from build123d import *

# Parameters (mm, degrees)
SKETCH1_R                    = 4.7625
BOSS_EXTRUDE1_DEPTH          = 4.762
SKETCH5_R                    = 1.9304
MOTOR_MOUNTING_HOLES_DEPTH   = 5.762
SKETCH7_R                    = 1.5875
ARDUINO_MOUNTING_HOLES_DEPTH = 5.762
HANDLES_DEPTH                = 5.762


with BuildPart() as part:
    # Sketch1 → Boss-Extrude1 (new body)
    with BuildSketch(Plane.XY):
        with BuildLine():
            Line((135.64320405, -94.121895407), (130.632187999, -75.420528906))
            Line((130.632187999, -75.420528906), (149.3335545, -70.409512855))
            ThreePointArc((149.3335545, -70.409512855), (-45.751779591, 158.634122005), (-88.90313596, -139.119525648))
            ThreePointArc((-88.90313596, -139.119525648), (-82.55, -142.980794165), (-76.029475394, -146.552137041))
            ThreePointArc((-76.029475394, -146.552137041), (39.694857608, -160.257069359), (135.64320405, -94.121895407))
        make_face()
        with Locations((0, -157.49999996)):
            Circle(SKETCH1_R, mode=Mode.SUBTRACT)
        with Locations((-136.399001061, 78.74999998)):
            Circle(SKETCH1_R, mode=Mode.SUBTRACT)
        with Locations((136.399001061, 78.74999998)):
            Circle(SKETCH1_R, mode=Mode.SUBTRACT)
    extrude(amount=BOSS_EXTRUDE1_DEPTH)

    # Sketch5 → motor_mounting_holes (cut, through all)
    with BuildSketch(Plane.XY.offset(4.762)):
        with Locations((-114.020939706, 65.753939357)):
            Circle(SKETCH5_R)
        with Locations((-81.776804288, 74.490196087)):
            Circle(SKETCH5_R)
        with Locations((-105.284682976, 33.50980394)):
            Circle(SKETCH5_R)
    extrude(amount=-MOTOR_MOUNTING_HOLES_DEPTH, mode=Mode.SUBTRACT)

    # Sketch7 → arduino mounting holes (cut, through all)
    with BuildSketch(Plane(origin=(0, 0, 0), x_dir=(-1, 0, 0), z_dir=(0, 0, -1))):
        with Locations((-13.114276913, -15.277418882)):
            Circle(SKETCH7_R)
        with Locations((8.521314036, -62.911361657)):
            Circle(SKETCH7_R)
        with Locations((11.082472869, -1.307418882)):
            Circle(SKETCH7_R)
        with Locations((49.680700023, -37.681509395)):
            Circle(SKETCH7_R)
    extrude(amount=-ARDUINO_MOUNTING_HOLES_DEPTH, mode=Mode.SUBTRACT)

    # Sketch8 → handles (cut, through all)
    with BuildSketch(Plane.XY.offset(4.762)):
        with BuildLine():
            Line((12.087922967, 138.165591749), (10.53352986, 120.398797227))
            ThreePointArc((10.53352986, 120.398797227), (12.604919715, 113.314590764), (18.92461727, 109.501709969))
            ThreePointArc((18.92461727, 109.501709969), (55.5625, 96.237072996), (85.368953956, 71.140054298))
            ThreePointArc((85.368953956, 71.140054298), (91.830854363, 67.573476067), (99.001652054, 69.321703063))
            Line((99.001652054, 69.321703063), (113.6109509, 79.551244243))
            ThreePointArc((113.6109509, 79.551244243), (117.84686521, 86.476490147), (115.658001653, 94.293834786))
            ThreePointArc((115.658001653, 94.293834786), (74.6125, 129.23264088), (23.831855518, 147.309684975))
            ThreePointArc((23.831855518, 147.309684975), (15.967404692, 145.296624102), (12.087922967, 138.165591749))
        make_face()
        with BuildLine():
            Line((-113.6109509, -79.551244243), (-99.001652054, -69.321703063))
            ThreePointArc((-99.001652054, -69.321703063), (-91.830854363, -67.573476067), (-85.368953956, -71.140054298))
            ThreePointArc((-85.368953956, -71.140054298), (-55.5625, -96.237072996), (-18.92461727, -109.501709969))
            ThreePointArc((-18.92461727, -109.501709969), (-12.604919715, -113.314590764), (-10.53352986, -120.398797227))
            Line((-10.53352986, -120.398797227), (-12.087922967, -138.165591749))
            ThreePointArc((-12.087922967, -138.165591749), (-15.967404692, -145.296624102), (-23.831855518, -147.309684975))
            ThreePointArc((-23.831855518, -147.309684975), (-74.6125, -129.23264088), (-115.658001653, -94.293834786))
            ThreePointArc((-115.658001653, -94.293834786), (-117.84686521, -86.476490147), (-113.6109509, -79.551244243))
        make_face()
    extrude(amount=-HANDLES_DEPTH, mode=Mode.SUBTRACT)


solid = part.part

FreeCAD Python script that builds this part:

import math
import FreeCAD as App
import Part
import Sketcher
from FreeCAD import Vector
Q = App.Units.Quantity

doc = App.newDocument("Part")
params = doc.addObject("Spreadsheet::Sheet", "Params")
for row, (alias, value) in enumerate([
    ("sketch1_radius", "6.5 in"),
    ("sketch1_diameter", "0.375 in"),
    ("pad1_length", "4.762 mm"),
    ("sketch2_diameter", "0.152 in"),
    ("sketch3_diameter", "0.125 in"),
    ("sketch4_radius", "0.4 in"),
    ("sketch4_radius2", "4.375 in"),
    ("sketch4_radius3", "5.875 in"),
], start=1):
    params.set(f"A{row}", alias)
    params.set(f"B{row}", "=" + value)
    params.setAlias(f"B{row}", alias)

body = doc.addObject("PartDesign::Body", "Body")

sketch1 = doc.addObject("Sketcher::SketchObject", "Sketch")
body.addObject(sketch1)
sketch1.AttachmentSupport = (doc.XY_Plane, [""])
sketch1.MapMode = "FlatFace"
sketch1.addGeometry([
    Part.LineSegment(Vector(135.6, -94.1, 0), Vector(130.6, -75.4, 0)),
    Part.LineSegment(Vector(130.6, -75.4, 0), Vector(149.3, -70.4, 0)),
    Part.ArcOfCircle(Part.Circle(Vector(0, 0, 0), Vector(0, 0, 1), 165.1), math.radians(-25), math.radians(237)),
    Part.ArcOfCircle(Part.Circle(Vector(0, 0, 0), Vector(0, 0, 1), 165.1), math.radians(-122.58), math.radians(-117.42)),
    Part.ArcOfCircle(Part.Circle(Vector(0, 0, 0), Vector(0, 0, 1), 165.1), math.radians(-117), math.radians(-35)),
    Part.Circle(Vector(0, -157.5, 0), Vector(0, 0, 1), 4.8),
    Part.Circle(Vector(-136.4, 78.7, 0), Vector(0, 0, 1), 4.8),
    Part.Circle(Vector(136.4, 78.7, 0), Vector(0, 0, 1), 4.8),
], False)
sketch1.addConstraint([
    Sketcher.Constraint("Coincident", 0, 2, 1, 1),
    Sketcher.Constraint("Coincident", 1, 2, 2, 1),
    Sketcher.Constraint("Tangent", 2, 2, 3, 1),
    Sketcher.Constraint("Tangent", 3, 2, 4, 1),
    Sketcher.Constraint("Coincident", 4, 2, 0, 1),
    Sketcher.Constraint("Coincident", 2, 3, -1, 1),
    Sketcher.Constraint("Coincident", 4, 3, -1, 1),
    Sketcher.Constraint("Equal", 5, 6),
    Sketcher.Constraint("Equal", 6, 7),
    Sketcher.Constraint("Symmetric", 6, 3, 7, 3, -2),
    Sketcher.Constraint("PointOnObject", 5, 3, -2),
    Sketcher.Constraint("Perpendicular", 0, 1),
    Sketcher.Constraint("Equal", 0, 1),
    Sketcher.Constraint("Radius", 2, Q("6.5 in")),
    Sketcher.Constraint("Diameter", 5, Q("0.375 in")),
    Sketcher.Constraint("Angle", 0, Q("105 deg")),
    Sketcher.Constraint("DistanceY", 5, 3, -1, 1, Q("157.5 mm")),
    Sketcher.Constraint("DistanceX", 6, 3, -1, 1, Q("136.399001 mm")),
    Sketcher.Constraint("DistanceY", -1, 1, 6, 3, Q("78.75 mm")),
    Sketcher.Constraint("Distance", 0, Q("19.361079 mm")),
    Sketcher.Constraint("DistanceX", 2, 2, 3, 2, Q("12.873661 mm")),
    Sketcher.Constraint("DistanceY", 3, 2, 2, 2, Q("7.432611 mm")),
])
sketch1.setExpression("Constraints[13]", "Params.sketch1_radius")
sketch1.setExpression("Constraints[14]", "Params.sketch1_diameter")
pad1 = doc.addObject("PartDesign::Pad", "Pad")
body.addObject(pad1)
pad1.Profile = sketch1
pad1.setExpression("Length", "Params.pad1_length")

sketch2 = doc.addObject("Sketcher::SketchObject", "Sketch001")
body.addObject(sketch2)
sketch2.AttachmentSupport = (doc.XY_Plane, [""])
sketch2.MapMode = "FlatFace"
sketch2.AttachmentOffset = App.Placement(Vector(0, 0, 4.762), App.Rotation())
sketch2.addGeometry([
    Part.Circle(Vector(-114, 65.8, 0), Vector(0, 0, 1), 1.9),
    Part.Circle(Vector(-81.8, 74.5, 0), Vector(0, 0, 1), 1.9),
    Part.Circle(Vector(-105.3, 33.5, 0), Vector(0, 0, 1), 1.9),
], False)
sketch2.addConstraint([
    Sketcher.Constraint("Equal", 0, 1),
    Sketcher.Constraint("Equal", 1, 2),
    Sketcher.Constraint("Diameter", 0, Q("0.152 in")),
    Sketcher.Constraint("DistanceX", 0, 3, -1, 1, Q("114.02094 mm")),
    Sketcher.Constraint("DistanceY", -1, 1, 0, 3, Q("65.753939 mm")),
    Sketcher.Constraint("DistanceX", 2, 3, 1, 3, Q("23.507879 mm")),
    Sketcher.Constraint("DistanceX", 1, 3, -1, 1, Q("81.776804 mm")),
    Sketcher.Constraint("DistanceY", -1, 1, 1, 3, Q("74.490196 mm")),
    Sketcher.Constraint("DistanceY", -1, 1, 2, 3, Q("33.509804 mm")),
])
sketch2.setExpression("Constraints[2]", "Params.sketch2_diameter")
pocket1 = doc.addObject("PartDesign::Pocket", "Pocket")
body.addObject(pocket1)
pocket1.Profile = sketch2
pocket1.Type = "ThroughAll"

sketch3 = doc.addObject("Sketcher::SketchObject", "Sketch002")
body.addObject(sketch3)
sketch3.AttachmentSupport = (doc.XY_Plane, [""])
sketch3.MapMode = "FlatFace"
sketch3.addGeometry([
    Part.Circle(Vector(13.1, -15.3, 0), Vector(0, 0, 1), 1.6),
    Part.Circle(Vector(-8.5, -62.9, 0), Vector(0, 0, 1), 1.6),
    Part.Circle(Vector(-11.1, -1.3, 0), Vector(0, 0, 1), 1.6),
    Part.Circle(Vector(-49.7, -37.7, 0), Vector(0, 0, 1), 1.6),
], False)
sketch3.addConstraint([
    Sketcher.Constraint("Equal", 0, 1),
    Sketcher.Constraint("Equal", 1, 2),
    Sketcher.Constraint("Equal", 2, 3),
    Sketcher.Constraint("Diameter", 0, Q("0.125 in")),
    Sketcher.Constraint("DistanceY", 0, 3, 2, 3, Q("0.55 in")),
    Sketcher.Constraint("DistanceX", 3, 3, -1, 1, Q("49.6807 mm")),
    Sketcher.Constraint("DistanceY", 0, 3, -1, 1, Q("15.277419 mm")),
    Sketcher.Constraint("DistanceY", 1, 3, -1, 1, Q("62.911362 mm")),
    Sketcher.Constraint("DistanceY", 3, 3, -1, 1, Q("37.681509 mm")),
    Sketcher.Constraint("DistanceX", 1, 3, 0, 3, Q("21.635591 mm")),
    Sketcher.Constraint("DistanceX", 2, 3, 0, 3, Q("24.19675 mm")),
    Sketcher.Constraint("DistanceX", -1, 1, 0, 3, Q("13.114277 mm")),
])
sketch3.setExpression("Constraints[3]", "Params.sketch3_diameter")
pocket2 = doc.addObject("PartDesign::Pocket", "Pocket001")
body.addObject(pocket2)
pocket2.Profile = sketch3
pocket2.Type = "ThroughAll"
pocket2.Reversed = True

sketch4 = doc.addObject("Sketcher::SketchObject", "Sketch003")
body.addObject(sketch4)
sketch4.AttachmentSupport = (doc.XY_Plane, [""])
sketch4.MapMode = "FlatFace"
sketch4.AttachmentOffset = App.Placement(Vector(0, 0, 4.762), App.Rotation())
sketch4.addGeometry([
    Part.LineSegment(Vector(12, 138, 0), Vector(11, 120, 0)),
    Part.ArcOfCircle(Part.Circle(Vector(21, 120, 0), Vector(0, 0, 1), 10), math.radians(175), math.radians(260)),
    Part.ArcOfCircle(Part.Circle(Vector(0, 0, 0), Vector(0, 0, 1), 111), math.radians(40), math.radians(80)),
    Part.ArcOfCircle(Part.Circle(Vector(93, 78, 0), Vector(0, 0, 1), 10), math.radians(-140), math.radians(-55)),
    Part.LineSegment(Vector(99, 69, 0), Vector(114, 80, 0)),
    Part.ArcOfCircle(Part.Circle(Vector(108, 88, 0), Vector(0, 0, 1), 10), math.radians(-55), math.radians(39)),
    Part.ArcOfCircle(Part.Circle(Vector(0, 0, 0), Vector(0, 0, 1), 149), math.radians(39), math.radians(81)),
    Part.ArcOfCircle(Part.Circle(Vector(22, 137, 0), Vector(0, 0, 1), 10), math.radians(81), math.radians(175)),
    Part.LineSegment(Vector(-99, -69, 0), Vector(-114, -80, 0)),
    Part.ArcOfCircle(Part.Circle(Vector(-108, -88, 0), Vector(0, 0, 1), 10), math.radians(125), math.radians(219)),
    Part.ArcOfCircle(Part.Circle(Vector(0, 0, 0), Vector(0, 0, 1), 149), math.radians(-141), math.radians(-99)),
    Part.ArcOfCircle(Part.Circle(Vector(-22, -137, 0), Vector(0, 0, 1), 10), math.radians(-99), math.radians(-5)),
    Part.LineSegment(Vector(-12, -138, 0), Vector(-11, -120, 0)),
    Part.ArcOfCircle(Part.Circle(Vector(-21, -120, 0), Vector(0, 0, 1), 10), math.radians(-5), math.radians(80)),
    Part.ArcOfCircle(Part.Circle(Vector(0, 0, 0), Vector(0, 0, 1), 111), math.radians(-140), math.radians(-100)),
    Part.ArcOfCircle(Part.Circle(Vector(-93, -78, 0), Vector(0, 0, 1), 10), math.radians(40), math.radians(125)),
], False)
sketch4.addConstraint([
    Sketcher.Constraint("Tangent", 0, 2, 1, 1),
    Sketcher.Constraint("Tangent", 1, 2, 2, 2),
    Sketcher.Constraint("Tangent", 2, 1, 3, 1),
    Sketcher.Constraint("Tangent", 3, 2, 4, 1),
    Sketcher.Constraint("Tangent", 4, 2, 5, 1),
    Sketcher.Constraint("Tangent", 5, 2, 6, 1),
    Sketcher.Constraint("Tangent", 6, 2, 7, 1),
    Sketcher.Constraint("Tangent", 7, 2, 0, 1),
    Sketcher.Constraint("Tangent", 8, 2, 9, 1),
    Sketcher.Constraint("Tangent", 9, 2, 10, 1),
    Sketcher.Constraint("Tangent", 10, 2, 11, 1),
    Sketcher.Constraint("Tangent", 11, 2, 12, 1),
    Sketcher.Constraint("Tangent", 12, 2, 13, 1),
    Sketcher.Constraint("Tangent", 13, 2, 14, 2),
    Sketcher.Constraint("Tangent", 14, 1, 15, 1),
    Sketcher.Constraint("Tangent", 15, 2, 8, 1),
    Sketcher.Constraint("Coincident", 2, 3, -1, 1),
    Sketcher.Constraint("Coincident", 6, 3, -1, 1),
    Sketcher.Constraint("Coincident", 10, 3, -1, 1),
    Sketcher.Constraint("Coincident", 14, 3, -1, 1),
    Sketcher.Constraint("Equal", 1, 3),
    Sketcher.Constraint("Equal", 3, 5),
    Sketcher.Constraint("Equal", 5, 7),
    Sketcher.Constraint("Equal", 7, 9),
    Sketcher.Constraint("Equal", 6, 10),
    Sketcher.Constraint("Equal", 9, 11),
    Sketcher.Constraint("Equal", 11, 13),
    Sketcher.Constraint("Equal", 2, 14),
    Sketcher.Constraint("Equal", 13, 15),
    Sketcher.Constraint("Symmetric", 4, 2, 8, 2, -1, 1),
    Sketcher.Constraint("Symmetric", 7, 2, 11, 2, -1, 1),
    Sketcher.Constraint("Equal", 0, 4),
    Sketcher.Constraint("Radius", 1, Q("0.4 in")),
    Sketcher.Constraint("Angle", 0, Q("-95 deg")),
    Sketcher.Constraint("Angle", 4, Q("35 deg")),
    Sketcher.Constraint("Radius", 2, Q("4.375 in")),
    Sketcher.Constraint("Radius", 6, Q("5.875 in")),
    Sketcher.Constraint("DistanceX", -1, 1, 5, 2, Q("115.658002 mm")),
])
sketch4.setExpression("Constraints[32]", "Params.sketch4_radius")
sketch4.setExpression("Constraints[35]", "Params.sketch4_radius2")
sketch4.setExpression("Constraints[36]", "Params.sketch4_radius3")
pocket3 = doc.addObject("PartDesign::Pocket", "Pocket002")
body.addObject(pocket3)
pocket3.Profile = sketch4
pocket3.Type = "ThroughAll"

doc.recompute()
